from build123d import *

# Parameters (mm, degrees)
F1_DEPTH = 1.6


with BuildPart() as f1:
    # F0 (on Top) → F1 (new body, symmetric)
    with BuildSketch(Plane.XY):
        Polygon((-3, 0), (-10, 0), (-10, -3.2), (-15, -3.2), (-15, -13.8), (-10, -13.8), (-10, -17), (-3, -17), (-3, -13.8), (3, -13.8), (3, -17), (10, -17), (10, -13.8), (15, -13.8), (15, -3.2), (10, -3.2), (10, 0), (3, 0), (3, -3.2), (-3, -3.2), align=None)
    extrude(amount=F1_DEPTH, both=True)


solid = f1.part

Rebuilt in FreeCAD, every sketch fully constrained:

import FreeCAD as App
import Part
import Sketcher

doc = App.newDocument("Part")
params = doc.addObject("Spreadsheet::Sheet", "Params")
for row, (alias, value) in enumerate([
    ("sketch1_width", "7 mm"),
    ("sketch1_width2", "5 mm"),
    ("sketch1_width3", "6 mm"),
    ("sketch1_height", "3.2 mm"),
    ("sketch1_height2", "10.6 mm"),
    ("pad1_length", "3.2 mm"),
], start=1):
    params.set(f"A{row}", alias)
    params.set(f"B{row}", "=" + value)
    params.setAlias(f"B{row}", alias)

body = doc.addObject("PartDesign::Body", "Body")

# Sketch on XY plane
sketch1 = body.newObject("Sketcher::SketchObject", "Sketch")
sketch1.AttachmentSupport = (doc.getObject("XY_Plane"), [""])
sketch1.MapMode = "FlatFace"
sketch1.addGeometry([
    Part.LineSegment(App.Vector(-3, 0, 0), App.Vector(-10, 0, 0)),  # 0
    Part.LineSegment(App.Vector(-10, 0, 0), App.Vector(-10, -3.2, 0)),  # 1
    Part.LineSegment(App.Vector(-10, -3.2, 0), App.Vector(-15, -3.2, 0)),  # 2
    Part.LineSegment(App.Vector(-15, -3.2, 0), App.Vector(-15, -13.8, 0)),  # 3
    Part.LineSegment(App.Vector(-15, -13.8, 0), App.Vector(-10, -13.8, 0)),  # 4
    Part.LineSegment(App.Vector(-10, -13.8, 0), App.Vector(-10, -17, 0)),  # 5
    Part.LineSegment(App.Vector(-10, -17, 0), App.Vector(-3, -17, 0)),  # 6
    Part.LineSegment(App.Vector(-3, -17, 0), App.Vector(-3, -13.8, 0)),  # 7
    Part.LineSegment(App.Vector(-3, -13.8, 0), App.Vector(3, -13.8, 0)),  # 8
    Part.LineSegment(App.Vector(3, -13.8, 0), App.Vector(3, -17, 0)),  # 9
    Part.LineSegment(App.Vector(3, -17, 0), App.Vector(10, -17, 0)),  # 10
    Part.LineSegment(App.Vector(10, -17, 0), App.Vector(10, -13.8, 0)),  # 11
    Part.LineSegment(App.Vector(10, -13.8, 0), App.Vector(15, -13.8, 0)),  # 12
    Part.LineSegment(App.Vector(15, -13.8, 0), App.Vector(15, -3.2, 0)),  # 13
    Part.LineSegment(App.Vector(15, -3.2, 0), App.Vector(10, -3.2, 0)),  # 14
    Part.LineSegment(App.Vector(10, -3.2, 0), App.Vector(10, 0, 0)),  # 15
    Part.LineSegment(App.Vector(10, 0, 0), App.Vector(3, 0, 0)),  # 16
    Part.LineSegment(App.Vector(3, 0, 0), App.Vector(3, -3.2, 0)),  # 17
    Part.LineSegment(App.Vector(3, -3.2, 0), App.Vector(-3, -3.2, 0)),  # 18
    Part.LineSegment(App.Vector(-3, -3.2, 0), App.Vector(-3, 0, 0)),  # 19
], False)
sketch1.addConstraint([
    Sketcher.Constraint("Coincident", 0, 2, 1, 1),
    Sketcher.Constraint("Coincident", 1, 2, 2, 1),
    Sketcher.Constraint("Coincident", 2, 2, 3, 1),
    Sketcher.Constraint("Coincident", 3, 2, 4, 1),
    Sketcher.Constraint("Coincident", 4, 2, 5, 1),
    Sketcher.Constraint("Coincident", 5, 2, 6, 1),
    Sketcher.Constraint("Coincident", 6, 2, 7, 1),
    Sketcher.Constraint("Coincident", 7, 2, 8, 1),
    Sketcher.Constraint("Coincident", 8, 2, 9, 1),
    Sketcher.Constraint("Coincident", 9, 2, 10, 1),
    Sketcher.Constraint("Coincident", 10, 2, 11, 1),
    Sketcher.Constraint("Coincident", 11, 2, 12, 1),
    Sketcher.Constraint("Coincident", 12, 2, 13, 1),
    Sketcher.Constraint("Coincident", 13, 2, 14, 1),
    Sketcher.Constraint("Coincident", 14, 2, 15, 1),
    Sketcher.Constraint("Coincident", 15, 2, 16, 1),
    Sketcher.Constraint("Coincident", 16, 2, 17, 1),
    Sketcher.Constraint("Coincident", 17, 2, 18, 1),
    Sketcher.Constraint("Coincident", 18, 2, 19, 1),
    Sketcher.Constraint("Coincident", 19, 2, 0, 1),
    Sketcher.Constraint("Horizontal", 0),
    Sketcher.Constraint("Vertical", 1),
    Sketcher.Constraint("Horizontal", 2),
    Sketcher.Constraint("Vertical", 3),
    Sketcher.Constraint("Horizontal", 4),
    Sketcher.Constraint("Vertical", 5),
    Sketcher.Constraint("Horizontal", 6),
    Sketcher.Constraint("Vertical", 7),
    Sketcher.Constraint("Horizontal", 8),
    Sketcher.Constraint("Vertical", 9),
    Sketcher.Constraint("Horizontal", 10),
    Sketcher.Constraint("Vertical", 11),
    Sketcher.Constraint("Horizontal", 12),
    Sketcher.Constraint("Vertical", 13),
    Sketcher.Constraint("Horizontal", 14),
    Sketcher.Constraint("Vertical", 15),
    Sketcher.Constraint("Horizontal", 16),
    Sketcher.Constraint("Vertical", 17),
    Sketcher.Constraint("Horizontal", 18),
    Sketcher.Constraint("Vertical", 19),
    Sketcher.Constraint("Symmetric", 0, 2, 15, 2, -1, 1),
    Sketcher.Constraint("Symmetric", 6, 2, 9, 2, -2),
    Sketcher.Constraint("Symmetric", 4, 2, 11, 2, -2),
    Sketcher.Constraint("Symmetric", 2, 2, 13, 2, -2),
    Sketcher.Constraint("Symmetric", 16, 2, 19, 2, -2),
    Sketcher.Constraint("Horizontal", 4, 2, 7, 2),
    Sketcher.Constraint("Horizontal", 14, 2, 17, 2),
    Sketcher.Constraint("Vertical", 1, 2, 4, 2),
    Sketcher.Constraint("Vertical", 9, 2, 16, 2),
    Sketcher.Constraint("Equal", 1, 5),
    Sketcher.Constraint("DistanceX", 0, 2, 0, 1, 7.0),
    Sketcher.Constraint("DistanceX", 2, 2, 2, 1, 5.0),
    Sketcher.Constraint("DistanceX", 8, 1, 8, 2, 6.0),
    Sketcher.Constraint("DistanceY", 1, 2, 1, 1, 3.2),
    Sketcher.Constraint("DistanceY", 3, 2, 3, 1, 10.6),
])
sketch1.setExpression("Constraints[50]", "Params.sketch1_width")
sketch1.setExpression("Constraints[51]", "Params.sketch1_width2")
sketch1.setExpression("Constraints[52]", "Params.sketch1_width3")
sketch1.setExpression("Constraints[53]", "Params.sketch1_height")
sketch1.setExpression("Constraints[54]", "Params.sketch1_height2")
pad1 = body.newObject("PartDesign::Pad", "Pad")
pad1.Profile = sketch1
pad1.setExpression("Length", "Params.pad1_length")
pad1.Midplane = True

doc.recompute()
